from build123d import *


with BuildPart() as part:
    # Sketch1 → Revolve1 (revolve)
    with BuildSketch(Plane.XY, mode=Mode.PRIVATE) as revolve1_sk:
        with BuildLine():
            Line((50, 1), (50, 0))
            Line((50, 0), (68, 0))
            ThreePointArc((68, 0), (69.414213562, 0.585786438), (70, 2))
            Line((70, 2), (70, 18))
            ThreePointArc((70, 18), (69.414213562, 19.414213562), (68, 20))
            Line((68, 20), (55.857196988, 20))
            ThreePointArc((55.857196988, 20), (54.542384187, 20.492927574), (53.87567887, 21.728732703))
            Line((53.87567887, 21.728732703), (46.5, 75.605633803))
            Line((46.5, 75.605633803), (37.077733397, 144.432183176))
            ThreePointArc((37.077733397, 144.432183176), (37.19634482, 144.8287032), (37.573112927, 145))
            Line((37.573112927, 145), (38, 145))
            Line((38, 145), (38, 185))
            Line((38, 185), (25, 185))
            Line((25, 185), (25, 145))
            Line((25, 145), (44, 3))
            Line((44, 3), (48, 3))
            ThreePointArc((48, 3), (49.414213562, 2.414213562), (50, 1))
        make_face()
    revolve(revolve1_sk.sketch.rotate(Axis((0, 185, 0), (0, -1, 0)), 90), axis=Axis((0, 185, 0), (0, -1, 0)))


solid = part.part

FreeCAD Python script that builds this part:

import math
import FreeCAD as App
import Part
import Sketcher
from FreeCAD import Vector

doc = App.newDocument("Part")
body = doc.addObject("PartDesign::Body", "Body")

# Sketch on XY plane
sketch1 = body.newObject("Sketcher::SketchObject", "Sketch")
sketch1.AttachmentSupport = (doc.getObject("XY_Plane"), [""])
sketch1.MapMode = "FlatFace"
sketch1.addGeometry([
    Part.LineSegment(Vector(50, 1, 0), Vector(50, 0, 0)),  # 0
    Part.LineSegment(Vector(50, 0, 0), Vector(68, 0, 0)),  # 1
    Part.ArcOfCircle(Part.Circle(Vector(68, 2, 0), Vector(0, 0, 1), 2), math.radians(-90), math.radians(0)),  # 2
    Part.LineSegment(Vector(70, 2, 0), Vector(70, 18, 0)),  # 3
    Part.ArcOfCircle(Part.Circle(Vector(68, 18, 0), Vector(0, 0, 1), 2), math.radians(0), math.radians(90)),  # 4
    Part.LineSegment(Vector(68, 20, 0), Vector(55.86, 20, 0)),  # 5
    Part.ArcOfCircle(Part.Circle(Vector(55.86, 22, 0), Vector(0, 0, 1), 2), math.radians(-172), math.radians(-90)),  # 6
    Part.LineSegment(Vector(53.88, 21.73, 0), Vector(37.08, 144.43, 0)),  # 7
    Part.ArcOfCircle(Part.Circle(Vector(37.57, 144.5, 0), Vector(0, 0, 1), 0.5), math.radians(90), math.radians(188)),  # 8
    Part.LineSegment(Vector(37.57, 145, 0), Vector(38, 145, 0)),  # 9
    Part.LineSegment(Vector(38, 145, 0), Vector(38, 185, 0)),  # 10
    Part.LineSegment(Vector(38, 185, 0), Vector(25, 185, 0)),  # 11
    Part.LineSegment(Vector(25, 185, 0), Vector(25, 145, 0)),  # 12
    Part.LineSegment(Vector(25, 145, 0), Vector(44, 3, 0)),  # 13
    Part.LineSegment(Vector(44, 3, 0), Vector(48, 3, 0)),  # 14
    Part.ArcOfCircle(Part.Circle(Vector(48, 1, 0), Vector(0, 0, 1), 2), math.radians(0), math.radians(90)),  # 15
], False)
sketch1.addConstraint([
    Sketcher.Constraint("Coincident", 0, 2, 1, 1),
    Sketcher.Constraint("Tangent", 1, 2, 2, 1),
    Sketcher.Constraint("Tangent", 2, 2, 3, 1),
    Sketcher.Constraint("Tangent", 3, 2, 4, 1),
    Sketcher.Constraint("Tangent", 4, 2, 5, 1),
    Sketcher.Constraint("Tangent", 5, 2, 6, 2),
    Sketcher.Constraint("Tangent", 6, 1, 7, 1),
    Sketcher.Constraint("Tangent", 7, 2, 8, 2),
    Sketcher.Constraint("Tangent", 8, 1, 9, 1),
    Sketcher.Constraint("Coincident", 9, 2, 10, 1),
    Sketcher.Constraint("Coincident", 10, 2, 11, 1),
    Sketcher.Constraint("Coincident", 11, 2, 12, 1),
    Sketcher.Constraint("Coincident", 12, 2, 13, 1),
    Sketcher.Constraint("Coincident", 13, 2, 14, 1),
    Sketcher.Constraint("Tangent", 14, 2, 15, 2),
    Sketcher.Constraint("Tangent", 15, 1, 0, 1),
    Sketcher.Constraint("Vertical", 0),
    Sketcher.Constraint("Horizontal", 1),
    Sketcher.Constraint("Vertical", 3),
    Sketcher.Constraint("Horizontal", 5),
    Sketcher.Constraint("Horizontal", 9),
    Sketcher.Constraint("Vertical", 10),
    Sketcher.Constraint("Horizontal", 11),
    Sketcher.Constraint("Vertical", 12),
    Sketcher.Constraint("Horizontal", 14),
    Sketcher.Constraint("Equal", 2, 4),
    Sketcher.Constraint("Equal", 4, 6),
    Sketcher.Constraint("Equal", 6, 15),
    Sketcher.Constraint("PointOnObject", 0, 2, -1),
    Sketcher.Constraint("Horizontal", 9, 2, 12, 2),
    Sketcher.Constraint("Radius", 2, 2.0),
    Sketcher.Constraint("Radius", 8, 0.5),
    Sketcher.Constraint("DistanceX", 1, 1, 1, 2, 18.0),
    Sketcher.Constraint("DistanceX", 11, 2, 11, 1, 13.0),
    Sketcher.Constraint("DistanceX", 14, 1, 14, 2, 4.0),
    Sketcher.Constraint("DistanceY", 0, 2, 0, 1, 1.0),
    Sketcher.Constraint("DistanceY", 3, 1, 3, 2, 16.0),
    Sketcher.Constraint("DistanceY", 10, 1, 10, 2, 40.0),
    Sketcher.Constraint("DistanceX", -1, 1, 2, 3, 68.0),
    Sketcher.Constraint("DistanceY", -1, 1, 8, 1, 145.0),
    Sketcher.Constraint("DistanceX", -1, 1, 9, 2, 38.0),
    Sketcher.Constraint("Distance", 7, 123.847922),
    Sketcher.Constraint("DistanceX", 5, 2, 5, 1, 12.142803),
])
revolution = body.newObject("PartDesign::Revolution", "Revolution")
revolution.Profile = sketch1
revolution.ReferenceAxis = (sketch1, ["V_Axis"])
revolution.Angle = 360

doc.recompute()
